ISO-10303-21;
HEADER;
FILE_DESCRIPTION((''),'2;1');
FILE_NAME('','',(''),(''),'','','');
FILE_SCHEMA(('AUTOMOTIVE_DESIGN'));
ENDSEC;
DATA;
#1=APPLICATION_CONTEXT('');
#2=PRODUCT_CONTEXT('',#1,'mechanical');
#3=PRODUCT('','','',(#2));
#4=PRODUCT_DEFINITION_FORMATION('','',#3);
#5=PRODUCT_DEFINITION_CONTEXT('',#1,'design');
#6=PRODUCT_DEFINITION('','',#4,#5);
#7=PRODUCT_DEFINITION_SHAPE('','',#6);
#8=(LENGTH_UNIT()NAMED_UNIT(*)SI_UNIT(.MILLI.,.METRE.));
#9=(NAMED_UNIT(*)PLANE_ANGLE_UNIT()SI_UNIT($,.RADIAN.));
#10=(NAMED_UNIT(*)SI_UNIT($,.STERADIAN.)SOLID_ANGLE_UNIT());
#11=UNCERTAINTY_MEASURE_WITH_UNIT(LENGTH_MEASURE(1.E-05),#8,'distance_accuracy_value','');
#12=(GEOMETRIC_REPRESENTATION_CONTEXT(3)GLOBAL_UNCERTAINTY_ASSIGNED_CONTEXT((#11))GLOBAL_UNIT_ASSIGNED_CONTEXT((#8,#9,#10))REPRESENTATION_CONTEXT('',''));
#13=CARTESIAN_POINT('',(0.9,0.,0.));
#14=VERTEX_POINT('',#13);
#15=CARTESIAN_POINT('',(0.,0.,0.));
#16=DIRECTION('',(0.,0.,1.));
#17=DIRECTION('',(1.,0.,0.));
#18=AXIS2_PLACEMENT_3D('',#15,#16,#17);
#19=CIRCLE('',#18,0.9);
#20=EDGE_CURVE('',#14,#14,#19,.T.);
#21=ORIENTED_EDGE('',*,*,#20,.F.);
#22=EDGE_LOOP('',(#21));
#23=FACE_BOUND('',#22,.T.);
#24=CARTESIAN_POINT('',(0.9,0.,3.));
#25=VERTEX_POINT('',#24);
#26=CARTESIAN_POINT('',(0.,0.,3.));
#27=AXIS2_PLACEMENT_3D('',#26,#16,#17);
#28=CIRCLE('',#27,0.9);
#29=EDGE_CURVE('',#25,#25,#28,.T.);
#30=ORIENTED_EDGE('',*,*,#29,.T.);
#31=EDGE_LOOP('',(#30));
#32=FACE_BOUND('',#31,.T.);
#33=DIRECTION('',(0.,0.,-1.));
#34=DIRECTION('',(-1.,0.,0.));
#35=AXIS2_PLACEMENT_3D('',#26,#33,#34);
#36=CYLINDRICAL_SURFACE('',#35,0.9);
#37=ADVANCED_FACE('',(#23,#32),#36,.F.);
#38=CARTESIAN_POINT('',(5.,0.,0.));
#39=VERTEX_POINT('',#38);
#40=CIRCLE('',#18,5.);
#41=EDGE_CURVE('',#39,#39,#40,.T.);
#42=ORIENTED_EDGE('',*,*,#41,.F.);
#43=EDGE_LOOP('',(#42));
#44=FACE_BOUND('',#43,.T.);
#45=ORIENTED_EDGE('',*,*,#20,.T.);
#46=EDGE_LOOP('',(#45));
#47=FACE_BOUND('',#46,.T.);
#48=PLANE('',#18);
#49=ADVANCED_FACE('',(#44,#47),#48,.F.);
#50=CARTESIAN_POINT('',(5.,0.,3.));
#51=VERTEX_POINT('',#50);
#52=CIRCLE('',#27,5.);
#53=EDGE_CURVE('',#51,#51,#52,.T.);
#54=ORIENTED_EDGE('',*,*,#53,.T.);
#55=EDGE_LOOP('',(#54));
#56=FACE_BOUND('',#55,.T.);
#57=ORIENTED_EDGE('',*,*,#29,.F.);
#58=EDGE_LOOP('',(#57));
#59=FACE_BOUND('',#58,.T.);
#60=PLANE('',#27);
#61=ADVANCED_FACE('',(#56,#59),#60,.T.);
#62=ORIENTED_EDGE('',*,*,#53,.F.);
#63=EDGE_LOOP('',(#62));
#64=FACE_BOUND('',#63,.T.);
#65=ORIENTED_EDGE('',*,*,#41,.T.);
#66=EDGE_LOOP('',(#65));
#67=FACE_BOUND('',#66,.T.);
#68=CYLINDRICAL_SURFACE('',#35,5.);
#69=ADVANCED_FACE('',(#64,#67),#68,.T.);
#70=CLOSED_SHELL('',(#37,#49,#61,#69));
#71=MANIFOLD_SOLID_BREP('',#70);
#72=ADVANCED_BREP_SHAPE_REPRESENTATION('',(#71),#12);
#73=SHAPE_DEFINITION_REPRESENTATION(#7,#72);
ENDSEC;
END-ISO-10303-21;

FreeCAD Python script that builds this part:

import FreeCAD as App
import Part
import Sketcher
Q = App.Units.Quantity

doc = App.newDocument("Part")
body = doc.addObject("PartDesign::Body", "Body")

sketch1 = body.newObject("Sketcher::SketchObject", "Sketch")
sketch1.AttachmentSupport = (doc.getObject("XY_Plane"), [""])
sketch1.MapMode = "FlatFace"
sketch1.addGeometry(Part.Circle(App.Vector(0, 0, 0), App.Vector(0, 0, 1), 5), False)
sketch1.addGeometry(Part.Circle(App.Vector(0, 0, 0), App.Vector(0, 0, 1), 0.9), False)
sketch1.addConstraint(Sketcher.Constraint("Coincident", 0, 3, -1, 1))
sketch1.addConstraint(Sketcher.Constraint("Coincident", 1, 3, -1, 1))
sketch1.addConstraint(Sketcher.Constraint("Diameter", 0, Q("10 mm")))
sketch1.addConstraint(Sketcher.Constraint("Diameter", 1, Q("1.8 mm")))
pad1 = body.newObject("PartDesign::Pad", "Pad")
pad1.Profile = sketch1
pad1.Length = 3

doc.recompute()
